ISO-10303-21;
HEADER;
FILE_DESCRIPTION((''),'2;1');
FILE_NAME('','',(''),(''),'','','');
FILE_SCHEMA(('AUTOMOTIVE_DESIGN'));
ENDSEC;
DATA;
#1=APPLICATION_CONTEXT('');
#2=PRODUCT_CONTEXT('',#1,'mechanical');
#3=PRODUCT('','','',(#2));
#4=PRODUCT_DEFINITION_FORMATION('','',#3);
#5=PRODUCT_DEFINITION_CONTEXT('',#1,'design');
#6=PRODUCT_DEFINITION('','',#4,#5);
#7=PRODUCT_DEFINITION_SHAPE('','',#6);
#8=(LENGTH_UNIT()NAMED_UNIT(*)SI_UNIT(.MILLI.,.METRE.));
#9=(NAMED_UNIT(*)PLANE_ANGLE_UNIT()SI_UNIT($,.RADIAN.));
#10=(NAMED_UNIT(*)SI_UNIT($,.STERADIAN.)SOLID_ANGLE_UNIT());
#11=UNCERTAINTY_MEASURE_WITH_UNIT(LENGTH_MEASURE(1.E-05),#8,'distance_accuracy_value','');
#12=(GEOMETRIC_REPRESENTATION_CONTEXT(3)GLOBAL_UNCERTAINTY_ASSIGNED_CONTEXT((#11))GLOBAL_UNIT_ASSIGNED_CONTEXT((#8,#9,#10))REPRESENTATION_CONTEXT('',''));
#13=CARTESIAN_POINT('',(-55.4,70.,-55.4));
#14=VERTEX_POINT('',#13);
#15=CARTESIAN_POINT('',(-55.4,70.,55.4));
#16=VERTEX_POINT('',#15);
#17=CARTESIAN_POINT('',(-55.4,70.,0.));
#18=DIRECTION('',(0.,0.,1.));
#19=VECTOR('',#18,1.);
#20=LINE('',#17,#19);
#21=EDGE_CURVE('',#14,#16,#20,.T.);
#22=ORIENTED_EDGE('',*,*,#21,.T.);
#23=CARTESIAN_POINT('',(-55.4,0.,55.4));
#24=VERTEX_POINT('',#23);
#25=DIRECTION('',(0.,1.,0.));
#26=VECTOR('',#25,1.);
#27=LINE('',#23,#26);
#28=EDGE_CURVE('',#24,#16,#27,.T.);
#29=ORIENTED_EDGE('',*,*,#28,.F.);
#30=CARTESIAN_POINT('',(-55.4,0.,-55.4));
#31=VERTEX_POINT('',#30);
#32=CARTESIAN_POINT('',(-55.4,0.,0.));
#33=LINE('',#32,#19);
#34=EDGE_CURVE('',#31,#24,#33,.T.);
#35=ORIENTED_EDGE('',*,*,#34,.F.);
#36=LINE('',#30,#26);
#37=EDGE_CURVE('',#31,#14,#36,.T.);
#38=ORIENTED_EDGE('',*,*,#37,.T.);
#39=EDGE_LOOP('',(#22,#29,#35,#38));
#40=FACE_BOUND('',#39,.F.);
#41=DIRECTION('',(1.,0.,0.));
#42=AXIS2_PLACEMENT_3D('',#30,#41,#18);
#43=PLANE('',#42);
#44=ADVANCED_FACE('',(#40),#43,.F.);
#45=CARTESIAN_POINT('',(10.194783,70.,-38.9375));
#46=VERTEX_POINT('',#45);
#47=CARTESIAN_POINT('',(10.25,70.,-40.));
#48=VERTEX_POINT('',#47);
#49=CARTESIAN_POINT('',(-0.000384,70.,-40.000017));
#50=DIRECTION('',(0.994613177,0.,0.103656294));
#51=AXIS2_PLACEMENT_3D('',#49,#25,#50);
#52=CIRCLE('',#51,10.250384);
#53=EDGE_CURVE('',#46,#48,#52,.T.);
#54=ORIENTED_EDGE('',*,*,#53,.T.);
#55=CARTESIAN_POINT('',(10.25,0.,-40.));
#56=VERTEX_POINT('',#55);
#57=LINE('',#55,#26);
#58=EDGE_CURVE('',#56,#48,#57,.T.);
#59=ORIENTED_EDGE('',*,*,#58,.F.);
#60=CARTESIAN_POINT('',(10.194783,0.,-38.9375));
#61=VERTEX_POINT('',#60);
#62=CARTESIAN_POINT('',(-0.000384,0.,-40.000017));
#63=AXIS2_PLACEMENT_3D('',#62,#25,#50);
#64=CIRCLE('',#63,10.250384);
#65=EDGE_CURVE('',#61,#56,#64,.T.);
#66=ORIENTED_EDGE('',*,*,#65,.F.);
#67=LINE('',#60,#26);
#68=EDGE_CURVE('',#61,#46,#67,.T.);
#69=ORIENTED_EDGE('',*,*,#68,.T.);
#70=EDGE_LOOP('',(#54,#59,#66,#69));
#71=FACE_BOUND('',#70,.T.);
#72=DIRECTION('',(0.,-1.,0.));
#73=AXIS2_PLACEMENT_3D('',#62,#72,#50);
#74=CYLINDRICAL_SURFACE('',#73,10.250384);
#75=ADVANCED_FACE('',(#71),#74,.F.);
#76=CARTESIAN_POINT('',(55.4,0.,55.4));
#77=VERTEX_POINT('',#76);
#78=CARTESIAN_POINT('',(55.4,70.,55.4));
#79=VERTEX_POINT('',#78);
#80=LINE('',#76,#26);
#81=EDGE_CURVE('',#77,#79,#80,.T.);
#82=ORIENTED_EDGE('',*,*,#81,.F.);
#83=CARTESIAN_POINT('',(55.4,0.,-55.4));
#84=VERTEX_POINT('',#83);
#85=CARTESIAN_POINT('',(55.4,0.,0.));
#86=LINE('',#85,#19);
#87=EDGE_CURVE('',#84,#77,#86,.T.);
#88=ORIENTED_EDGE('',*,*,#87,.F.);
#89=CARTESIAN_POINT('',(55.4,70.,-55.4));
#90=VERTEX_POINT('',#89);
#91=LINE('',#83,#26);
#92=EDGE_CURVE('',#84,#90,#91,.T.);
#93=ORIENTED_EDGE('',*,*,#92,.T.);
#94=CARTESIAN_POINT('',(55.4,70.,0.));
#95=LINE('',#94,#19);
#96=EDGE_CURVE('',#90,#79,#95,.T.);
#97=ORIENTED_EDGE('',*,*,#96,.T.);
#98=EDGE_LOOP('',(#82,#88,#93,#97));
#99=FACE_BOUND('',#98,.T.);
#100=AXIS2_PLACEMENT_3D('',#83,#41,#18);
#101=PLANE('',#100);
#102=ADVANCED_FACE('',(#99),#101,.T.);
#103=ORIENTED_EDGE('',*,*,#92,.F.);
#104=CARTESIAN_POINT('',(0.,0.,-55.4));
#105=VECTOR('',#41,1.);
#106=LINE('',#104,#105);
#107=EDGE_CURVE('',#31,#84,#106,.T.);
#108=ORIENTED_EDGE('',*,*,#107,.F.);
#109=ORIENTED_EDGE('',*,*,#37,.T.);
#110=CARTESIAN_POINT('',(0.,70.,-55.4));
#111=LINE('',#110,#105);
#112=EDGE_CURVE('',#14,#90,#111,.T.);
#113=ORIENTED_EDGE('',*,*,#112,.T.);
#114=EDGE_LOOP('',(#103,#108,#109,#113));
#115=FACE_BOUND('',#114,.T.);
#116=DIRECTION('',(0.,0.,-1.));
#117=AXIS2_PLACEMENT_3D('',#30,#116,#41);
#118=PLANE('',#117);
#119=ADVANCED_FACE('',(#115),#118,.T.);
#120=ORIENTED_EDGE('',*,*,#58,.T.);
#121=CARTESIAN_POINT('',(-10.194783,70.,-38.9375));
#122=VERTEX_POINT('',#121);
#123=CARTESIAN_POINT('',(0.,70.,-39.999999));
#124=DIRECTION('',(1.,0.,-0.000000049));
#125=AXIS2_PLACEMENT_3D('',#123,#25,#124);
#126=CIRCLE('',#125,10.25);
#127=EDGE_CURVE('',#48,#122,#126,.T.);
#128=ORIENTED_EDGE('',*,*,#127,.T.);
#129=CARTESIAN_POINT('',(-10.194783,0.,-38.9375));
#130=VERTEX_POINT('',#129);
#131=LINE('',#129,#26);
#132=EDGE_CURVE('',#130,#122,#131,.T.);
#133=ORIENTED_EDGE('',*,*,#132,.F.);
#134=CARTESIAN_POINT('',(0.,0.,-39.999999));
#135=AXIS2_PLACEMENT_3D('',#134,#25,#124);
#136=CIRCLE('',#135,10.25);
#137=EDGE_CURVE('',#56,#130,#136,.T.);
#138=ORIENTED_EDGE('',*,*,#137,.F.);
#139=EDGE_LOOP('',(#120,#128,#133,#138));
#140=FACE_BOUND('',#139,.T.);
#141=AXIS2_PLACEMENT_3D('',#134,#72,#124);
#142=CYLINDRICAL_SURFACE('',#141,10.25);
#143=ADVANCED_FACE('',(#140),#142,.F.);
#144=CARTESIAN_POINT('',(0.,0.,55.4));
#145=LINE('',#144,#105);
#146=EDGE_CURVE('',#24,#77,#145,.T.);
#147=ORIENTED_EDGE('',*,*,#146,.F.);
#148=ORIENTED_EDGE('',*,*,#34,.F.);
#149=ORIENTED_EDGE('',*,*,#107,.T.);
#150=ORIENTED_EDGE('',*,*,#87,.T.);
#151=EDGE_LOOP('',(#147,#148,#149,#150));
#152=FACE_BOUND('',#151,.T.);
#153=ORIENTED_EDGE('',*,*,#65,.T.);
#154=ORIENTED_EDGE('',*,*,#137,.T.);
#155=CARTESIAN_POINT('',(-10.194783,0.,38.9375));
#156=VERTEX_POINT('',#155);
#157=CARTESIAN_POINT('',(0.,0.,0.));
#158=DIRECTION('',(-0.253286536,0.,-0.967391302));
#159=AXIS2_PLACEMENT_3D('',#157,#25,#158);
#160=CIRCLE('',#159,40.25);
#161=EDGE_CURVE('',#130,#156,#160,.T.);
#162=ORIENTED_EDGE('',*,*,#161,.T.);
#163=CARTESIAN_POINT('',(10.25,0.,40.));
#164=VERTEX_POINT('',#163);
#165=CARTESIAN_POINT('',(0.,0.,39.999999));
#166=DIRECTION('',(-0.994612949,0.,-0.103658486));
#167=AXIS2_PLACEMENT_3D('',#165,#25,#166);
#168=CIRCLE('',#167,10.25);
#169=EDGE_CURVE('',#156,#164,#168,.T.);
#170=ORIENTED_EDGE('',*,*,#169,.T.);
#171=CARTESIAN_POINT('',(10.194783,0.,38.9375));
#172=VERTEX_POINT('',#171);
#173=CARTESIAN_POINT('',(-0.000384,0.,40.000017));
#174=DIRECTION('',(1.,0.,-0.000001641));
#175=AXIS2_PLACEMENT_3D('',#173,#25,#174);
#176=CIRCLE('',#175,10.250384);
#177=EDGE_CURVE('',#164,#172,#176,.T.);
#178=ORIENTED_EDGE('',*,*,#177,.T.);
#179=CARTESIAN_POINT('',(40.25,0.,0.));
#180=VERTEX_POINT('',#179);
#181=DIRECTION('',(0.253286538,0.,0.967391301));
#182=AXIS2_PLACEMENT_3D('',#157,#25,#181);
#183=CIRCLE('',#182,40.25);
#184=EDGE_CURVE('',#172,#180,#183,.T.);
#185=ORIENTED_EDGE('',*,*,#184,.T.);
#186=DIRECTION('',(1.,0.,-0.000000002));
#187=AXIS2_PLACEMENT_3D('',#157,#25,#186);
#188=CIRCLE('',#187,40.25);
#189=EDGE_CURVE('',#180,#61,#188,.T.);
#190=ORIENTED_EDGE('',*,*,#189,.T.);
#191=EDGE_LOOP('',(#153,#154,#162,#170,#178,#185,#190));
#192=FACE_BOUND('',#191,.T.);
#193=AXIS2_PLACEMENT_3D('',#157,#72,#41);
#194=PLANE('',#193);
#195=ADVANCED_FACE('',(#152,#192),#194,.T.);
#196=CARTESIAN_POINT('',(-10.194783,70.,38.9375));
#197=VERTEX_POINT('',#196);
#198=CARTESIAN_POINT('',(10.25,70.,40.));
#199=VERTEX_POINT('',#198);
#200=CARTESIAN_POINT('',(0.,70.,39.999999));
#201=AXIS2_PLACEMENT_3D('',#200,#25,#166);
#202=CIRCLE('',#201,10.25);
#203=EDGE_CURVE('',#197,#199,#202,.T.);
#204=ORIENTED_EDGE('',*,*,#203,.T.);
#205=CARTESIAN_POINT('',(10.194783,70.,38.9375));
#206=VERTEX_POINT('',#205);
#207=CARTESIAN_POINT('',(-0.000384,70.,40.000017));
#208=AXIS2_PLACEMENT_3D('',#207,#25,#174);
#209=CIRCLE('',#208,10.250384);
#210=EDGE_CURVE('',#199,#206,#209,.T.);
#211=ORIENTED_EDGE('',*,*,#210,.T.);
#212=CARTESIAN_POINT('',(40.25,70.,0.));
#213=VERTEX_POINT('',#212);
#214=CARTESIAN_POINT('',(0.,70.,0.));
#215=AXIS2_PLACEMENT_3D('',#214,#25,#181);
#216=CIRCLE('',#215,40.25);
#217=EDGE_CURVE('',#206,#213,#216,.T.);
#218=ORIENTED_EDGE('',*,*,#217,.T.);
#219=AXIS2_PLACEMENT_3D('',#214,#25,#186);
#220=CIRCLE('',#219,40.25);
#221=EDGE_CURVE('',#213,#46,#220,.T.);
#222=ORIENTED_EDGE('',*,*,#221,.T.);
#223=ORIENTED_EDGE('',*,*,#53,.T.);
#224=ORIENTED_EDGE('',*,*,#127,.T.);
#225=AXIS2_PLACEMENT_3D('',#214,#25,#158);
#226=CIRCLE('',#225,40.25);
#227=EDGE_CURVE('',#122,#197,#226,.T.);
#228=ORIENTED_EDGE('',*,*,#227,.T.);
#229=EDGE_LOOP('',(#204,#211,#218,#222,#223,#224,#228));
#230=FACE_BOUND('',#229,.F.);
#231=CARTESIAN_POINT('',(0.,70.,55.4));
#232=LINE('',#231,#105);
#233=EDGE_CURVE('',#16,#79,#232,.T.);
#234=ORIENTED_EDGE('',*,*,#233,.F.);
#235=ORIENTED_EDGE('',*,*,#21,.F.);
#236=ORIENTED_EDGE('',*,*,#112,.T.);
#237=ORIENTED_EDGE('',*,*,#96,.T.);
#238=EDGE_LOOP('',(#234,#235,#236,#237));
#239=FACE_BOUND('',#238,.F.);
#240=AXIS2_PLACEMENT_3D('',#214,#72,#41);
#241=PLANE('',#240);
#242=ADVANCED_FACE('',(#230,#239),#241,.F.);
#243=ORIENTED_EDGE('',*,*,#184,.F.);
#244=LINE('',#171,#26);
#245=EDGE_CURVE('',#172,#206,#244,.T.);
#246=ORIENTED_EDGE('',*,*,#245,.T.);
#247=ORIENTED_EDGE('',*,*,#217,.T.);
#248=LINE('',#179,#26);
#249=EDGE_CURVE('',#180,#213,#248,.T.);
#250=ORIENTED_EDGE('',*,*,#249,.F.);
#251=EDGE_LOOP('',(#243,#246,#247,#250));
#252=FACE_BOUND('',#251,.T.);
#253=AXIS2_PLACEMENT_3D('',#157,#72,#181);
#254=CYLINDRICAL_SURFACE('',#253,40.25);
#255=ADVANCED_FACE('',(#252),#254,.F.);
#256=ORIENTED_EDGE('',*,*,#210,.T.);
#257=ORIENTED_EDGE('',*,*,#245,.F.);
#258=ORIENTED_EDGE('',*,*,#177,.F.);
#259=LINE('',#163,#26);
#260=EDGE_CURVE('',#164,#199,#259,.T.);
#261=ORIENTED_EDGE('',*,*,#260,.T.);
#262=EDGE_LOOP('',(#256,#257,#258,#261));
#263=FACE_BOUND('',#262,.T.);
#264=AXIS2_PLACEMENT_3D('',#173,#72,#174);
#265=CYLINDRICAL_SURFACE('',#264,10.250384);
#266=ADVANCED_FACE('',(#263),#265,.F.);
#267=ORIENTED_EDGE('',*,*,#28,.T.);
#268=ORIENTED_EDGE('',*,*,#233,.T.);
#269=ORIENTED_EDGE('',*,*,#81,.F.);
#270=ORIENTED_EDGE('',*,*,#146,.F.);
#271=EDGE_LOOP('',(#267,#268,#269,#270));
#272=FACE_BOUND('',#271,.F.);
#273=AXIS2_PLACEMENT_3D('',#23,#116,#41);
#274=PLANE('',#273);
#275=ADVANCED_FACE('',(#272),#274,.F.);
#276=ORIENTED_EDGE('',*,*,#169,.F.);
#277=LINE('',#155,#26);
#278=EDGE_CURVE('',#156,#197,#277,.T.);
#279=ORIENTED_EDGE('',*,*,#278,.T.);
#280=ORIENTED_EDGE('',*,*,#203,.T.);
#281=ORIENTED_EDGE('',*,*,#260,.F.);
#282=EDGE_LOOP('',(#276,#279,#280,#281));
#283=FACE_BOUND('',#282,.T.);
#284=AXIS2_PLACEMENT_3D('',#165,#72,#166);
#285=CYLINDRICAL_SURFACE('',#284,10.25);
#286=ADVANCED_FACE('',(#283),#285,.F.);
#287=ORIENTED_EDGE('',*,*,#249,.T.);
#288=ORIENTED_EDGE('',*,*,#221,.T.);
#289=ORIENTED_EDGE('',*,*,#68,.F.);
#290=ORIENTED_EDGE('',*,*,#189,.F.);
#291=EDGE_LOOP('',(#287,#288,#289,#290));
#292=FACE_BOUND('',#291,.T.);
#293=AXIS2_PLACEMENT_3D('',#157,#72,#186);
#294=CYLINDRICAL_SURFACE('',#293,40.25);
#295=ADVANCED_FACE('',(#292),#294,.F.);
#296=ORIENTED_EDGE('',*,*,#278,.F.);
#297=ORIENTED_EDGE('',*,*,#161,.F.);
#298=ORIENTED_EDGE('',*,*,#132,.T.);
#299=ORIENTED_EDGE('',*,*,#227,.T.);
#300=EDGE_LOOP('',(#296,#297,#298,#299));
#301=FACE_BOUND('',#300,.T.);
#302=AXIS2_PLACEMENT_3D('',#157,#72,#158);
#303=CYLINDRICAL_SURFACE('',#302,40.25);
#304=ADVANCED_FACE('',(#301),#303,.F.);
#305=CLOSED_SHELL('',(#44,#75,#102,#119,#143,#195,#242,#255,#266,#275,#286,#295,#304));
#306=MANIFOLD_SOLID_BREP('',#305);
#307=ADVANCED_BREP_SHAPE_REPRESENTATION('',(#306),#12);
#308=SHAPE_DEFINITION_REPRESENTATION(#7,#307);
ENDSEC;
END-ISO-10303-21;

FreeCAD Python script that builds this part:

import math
import FreeCAD as App
import Part
import Sketcher

V = App.Vector


def add_polygon(sketch, points):
    """Adds a closed chain of lines whose ends are joined by coincident constraints."""
    first, n = sketch.GeometryCount, len(points)
    for a, b in zip(points, points[1:] + points[:1]):
        sketch.addGeometry(Part.LineSegment(App.Vector(*a, 0), App.Vector(*b, 0)), False)
    for i in range(n):
        sketch.addConstraint(Sketcher.Constraint("Coincident", first + i, 2, first + (i + 1) % n, 1))

doc = App.newDocument("Part")
params = doc.addObject("Spreadsheet::Sheet", "Params")
for row, (alias, value) in enumerate([
    ("sketch1_radius", "40.25 mm"),
    ("sketch1_radius2", "10.25 mm"),
    ("sketch1_width", "110.8 mm"),
    ("pad1_length", "70 mm"),
], start=1):
    params.set(f"A{row}", alias)
    params.set(f"B{row}", "=" + value)
    params.setAlias(f"B{row}", alias)

body = doc.addObject("PartDesign::Body", "Body")

sketch1 = body.newObject("Sketcher::SketchObject", "Sketch")
sketch1.AttachmentSupport = (doc.getObject("XZ_Plane"), [""])
sketch1.MapMode = "FlatFace"
add_polygon(sketch1, [(-55.4, 55.4), (-55.4, -55.4), (55.4, -55.4), (55.4, 55.4)])
sketch1.addGeometry(Part.ArcOfCircle(Part.Circle(V(0, 40, 0), V(0, 0, 1), 10.3), math.radians(-5.95), math.radians(0)), False)
sketch1.addGeometry(Part.ArcOfCircle(Part.Circle(V(0, 0, 0), V(0, 0, 1), 40.3), math.radians(0), math.radians(75)), False)
sketch1.addGeometry(Part.ArcOfCircle(Part.Circle(V(0, 0, 0), V(0, 0, 1), 40.3), math.radians(-75), math.radians(0)), False)
sketch1.addGeometry(Part.ArcOfCircle(Part.Circle(V(0, -40, 0), V(0, 0, 1), 10.3), math.radians(0), math.radians(5.95)), False)
sketch1.addGeometry(Part.ArcOfCircle(Part.Circle(V(0, -40, 0), V(0, 0, 1), 10.3), math.radians(174), math.radians(360)), False)
sketch1.addGeometry(Part.ArcOfCircle(Part.Circle(V(0, 0, 0), V(0, 0, 1), 40.3), math.radians(105), math.radians(255)), False)
sketch1.addGeometry(Part.ArcOfCircle(Part.Circle(V(0, 40, 0), V(0, 0, 1), 10.3), math.radians(0), math.radians(186)), False)
sketch1.addConstraint(Sketcher.Constraint("Coincident", 4, 1, 5, 2))
sketch1.addConstraint(Sketcher.Constraint("Tangent", 5, 1, 6, 2))
sketch1.addConstraint(Sketcher.Constraint("Coincident", 6, 1, 7, 2))
sketch1.addConstraint(Sketcher.Constraint("Tangent", 7, 1, 8, 2))
sketch1.addConstraint(Sketcher.Constraint("Coincident", 8, 1, 9, 2))
sketch1.addConstraint(Sketcher.Constraint("Coincident", 9, 1, 10, 2))
sketch1.addConstraint(Sketcher.Constraint("Tangent", 10, 1, 4, 2))
sketch1.addConstraint(Sketcher.Constraint("Vertical", 0))
sketch1.addConstraint(Sketcher.Constraint("Horizontal", 1))
sketch1.addConstraint(Sketcher.Constraint("Vertical", 2))
sketch1.addConstraint(Sketcher.Constraint("Horizontal", 3))
sketch1.addConstraint(Sketcher.Constraint("Coincident", 5, 3, -1, 1))
sketch1.addConstraint(Sketcher.Constraint("Coincident", 9, 3, -1, 1))
sketch1.addConstraint(Sketcher.Constraint("Equal", 5, 6))
sketch1.addConstraint(Sketcher.Constraint("Equal", 4, 7))
sketch1.addConstraint(Sketcher.Constraint("Equal", 6, 9))
sketch1.addConstraint(Sketcher.Constraint("Equal", 8, 10))
sketch1.addConstraint(Sketcher.Constraint("Symmetric", 8, 3, 10, 3, -1, 1))
sketch1.addConstraint(Sketcher.Constraint("Symmetric", 0, 2, 2, 2, -1, 1))
sketch1.addConstraint(Sketcher.Constraint("Symmetric", 7, 1, 10, 1, -1))
sketch1.addConstraint(Sketcher.Constraint("PointOnObject", 5, 1, -1))
sketch1.addConstraint(Sketcher.Constraint("Horizontal", 8, 3, 7, 1))
sketch1.addConstraint(Sketcher.Constraint("Equal", 3, 0))
sketch1.addConstraint(Sketcher.Constraint("Radius", 5, 40.25))
sketch1.addConstraint(Sketcher.Constraint("Radius", 8, 10.25))
sketch1.addConstraint(Sketcher.Constraint("DistanceX", 1, 1, 1, 2, 110.8))
sketch1.addConstraint(Sketcher.Constraint("DistanceY", 8, 3, -1, 1, 40.0))
sketch1.addConstraint(Sketcher.Constraint("Radius", 4, 10.250384))
sketch1.setExpression("Constraints[27]", "Params.sketch1_radius")
sketch1.setExpression("Constraints[28]", "Params.sketch1_radius2")
sketch1.setExpression("Constraints[29]", "Params.sketch1_width")
pad1 = body.newObject("PartDesign::Pad", "Pad")
pad1.Profile = sketch1
pad1.setExpression("Length", "Params.pad1_length")
pad1.Reversed = True

doc.recompute()
